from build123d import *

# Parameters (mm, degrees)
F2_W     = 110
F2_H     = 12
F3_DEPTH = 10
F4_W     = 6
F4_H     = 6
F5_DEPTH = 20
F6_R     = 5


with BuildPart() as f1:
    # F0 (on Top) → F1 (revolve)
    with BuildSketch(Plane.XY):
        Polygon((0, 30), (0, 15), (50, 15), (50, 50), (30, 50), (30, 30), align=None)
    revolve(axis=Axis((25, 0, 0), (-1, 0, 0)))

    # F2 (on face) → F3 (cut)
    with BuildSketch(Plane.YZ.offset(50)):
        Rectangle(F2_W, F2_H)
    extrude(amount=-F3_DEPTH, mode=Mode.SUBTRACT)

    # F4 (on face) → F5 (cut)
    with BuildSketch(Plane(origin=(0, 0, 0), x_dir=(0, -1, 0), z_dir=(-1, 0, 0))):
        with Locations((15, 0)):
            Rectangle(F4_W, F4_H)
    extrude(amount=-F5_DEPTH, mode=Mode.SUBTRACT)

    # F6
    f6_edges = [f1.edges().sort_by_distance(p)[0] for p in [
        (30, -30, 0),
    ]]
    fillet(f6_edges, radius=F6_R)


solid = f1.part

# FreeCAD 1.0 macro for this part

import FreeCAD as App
import Part
import Sketcher

V = App.Vector
Q = App.Units.Quantity


def edges_at(feature, points):
    """Names of the edges that pass closest to the given points."""
    edges = feature.Shape.Edges
    near = lambda p: min(range(len(edges)), key=lambda i: edges[i].distToShape(Part.Vertex(*p))[0])
    return sorted({f"Edge{near(p) + 1}" for p in points})

doc = App.newDocument("Part")
params = doc.addObject("Spreadsheet::Sheet", "Params")
for row, (alias, value) in enumerate([
    ("sketch1_width", "50 mm"),
    ("sketch1_width2", "20 mm"),
    ("sketch1_height", "15 mm"),
    ("revolution_angle", "360 deg"),
    ("sketch2_width", "110 mm"),
    ("sketch2_height", "12 mm"),
    ("pocket1_length", "10 mm"),
    ("sketch3_width", "6 mm"),
    ("pocket2_length", "20 mm"),
    ("fillet_radius", "5 mm"),
], start=1):
    params.set(f"A{row}", alias)
    params.set(f"B{row}", "=" + value)
    params.setAlias(f"B{row}", alias)

body = doc.addObject("PartDesign::Body", "Body")

# Sketch on XY plane
sketch1 = doc.addObject("Sketcher::SketchObject", "Sketch")
body.addObject(sketch1)
sketch1.AttachmentSupport = (doc.XY_Plane, [""])
sketch1.MapMode = "FlatFace"
sketch1.addGeometry([
    Part.LineSegment(V(0, 30, 0), V(0, 15, 0)),  # 0
    Part.LineSegment(V(0, 15, 0), V(50, 15, 0)),  # 1
    Part.LineSegment(V(50, 15, 0), V(50, 50, 0)),  # 2
    Part.LineSegment(V(50, 50, 0), V(30, 50, 0)),  # 3
    Part.LineSegment(V(30, 50, 0), V(30, 30, 0)),  # 4
    Part.LineSegment(V(30, 30, 0), V(0, 30, 0)),  # 5
], False)
sketch1.addConstraint([
    Sketcher.Constraint("Coincident", 0, 2, 1, 1),
    Sketcher.Constraint("Coincident", 1, 2, 2, 1),
    Sketcher.Constraint("Coincident", 2, 2, 3, 1),
    Sketcher.Constraint("Coincident", 3, 2, 4, 1),
    Sketcher.Constraint("Coincident", 4, 2, 5, 1),
    Sketcher.Constraint("Coincident", 5, 2, 0, 1),
    Sketcher.Constraint("Vertical", 0),
    Sketcher.Constraint("Horizontal", 1),
    Sketcher.Constraint("Vertical", 2),
    Sketcher.Constraint("Horizontal", 3),
    Sketcher.Constraint("Vertical", 4),
    Sketcher.Constraint("Horizontal", 5),
    Sketcher.Constraint("PointOnObject", 0, 2, -2),
    Sketcher.Constraint("Equal", 3, 4),
    Sketcher.Constraint("DistanceX", 1, 1, 1, 2, Q("50 mm")),
    Sketcher.Constraint("DistanceX", 3, 2, 3, 1, Q("20 mm")),
    Sketcher.Constraint("DistanceY", 0, 2, 0, 1, Q("15 mm")),
    Sketcher.Constraint("DistanceY", -1, 1, 0, 2, Q("15 mm")),
])
sketch1.setExpression("Constraints[14]", "Params.sketch1_width")
sketch1.setExpression("Constraints[15]", "Params.sketch1_width2")
sketch1.setExpression("Constraints[16]", "Params.sketch1_height")
revolution = doc.addObject("PartDesign::Revolution", "Revolution")
body.addObject(revolution)
revolution.Profile = sketch1
revolution.ReferenceAxis = (sketch1, ["H_Axis"])
revolution.setExpression("Angle", "Params.revolution_angle")

# Sketch on YZ plane
sketch2 = doc.addObject("Sketcher::SketchObject", "Sketch001")
body.addObject(sketch2)
sketch2.AttachmentSupport = (doc.YZ_Plane, [""])
sketch2.MapMode = "FlatFace"
sketch2.AttachmentOffset = App.Placement(V(0, 0, 50), App.Rotation())
sketch2.addGeometry([
    Part.LineSegment(V(-55, 6, 0), V(-55, -6, 0)),
    Part.LineSegment(V(-55, -6, 0), V(55, -6, 0)),
    Part.LineSegment(V(55, -6, 0), V(55, 6, 0)),
    Part.LineSegment(V(55, 6, 0), V(-55, 6, 0)),
], False)
sketch2.addConstraint([
    Sketcher.Constraint("Coincident", 0, 2, 1, 1),
    Sketcher.Constraint("Coincident", 1, 2, 2, 1),
    Sketcher.Constraint("Coincident", 2, 2, 3, 1),
    Sketcher.Constraint("Coincident", 3, 2, 0, 1),
    Sketcher.Constraint("Vertical", 0),
    Sketcher.Constraint("Horizontal", 1),
    Sketcher.Constraint("Vertical", 2),
    Sketcher.Constraint("Horizontal", 3),
    Sketcher.Constraint("Symmetric", 0, 2, 2, 2, -1, 1),
    Sketcher.Constraint("DistanceX", 1, 1, 1, 2, Q("110 mm")),
    Sketcher.Constraint("DistanceY", 0, 2, 0, 1, Q("12 mm")),
])
sketch2.setExpression("Constraints[9]", "Params.sketch2_width")
sketch2.setExpression("Constraints[10]", "Params.sketch2_height")
pocket1 = doc.addObject("PartDesign::Pocket", "Pocket")
body.addObject(pocket1)
pocket1.Profile = sketch2
pocket1.setExpression("Length", "Params.pocket1_length")

# Sketch on YZ plane
sketch3 = doc.addObject("Sketcher::SketchObject", "Sketch002")
body.addObject(sketch3)
sketch3.AttachmentSupport = (doc.YZ_Plane, [""])
sketch3.MapMode = "FlatFace"
sketch3.addGeometry([
    Part.LineSegment(V(-12, 3, 0), V(-12, -3, 0)),
    Part.LineSegment(V(-12, -3, 0), V(-18, -3, 0)),
    Part.LineSegment(V(-18, -3, 0), V(-18, 3, 0)),
    Part.LineSegment(V(-18, 3, 0), V(-12, 3, 0)),
], False)
sketch3.addConstraint([
    Sketcher.Constraint("Coincident", 0, 2, 1, 1),
    Sketcher.Constraint("Coincident", 1, 2, 2, 1),
    Sketcher.Constraint("Coincident", 2, 2, 3, 1),
    Sketcher.Constraint("Coincident", 3, 2, 0, 1),
    Sketcher.Constraint("Vertical", 0),
    Sketcher.Constraint("Horizontal", 1),
    Sketcher.Constraint("Vertical", 2),
    Sketcher.Constraint("Horizontal", 3),
    Sketcher.Constraint("Equal", 3, 0),
    Sketcher.Constraint("DistanceX", 1, 2, 1, 1, Q("6 mm")),
    Sketcher.Constraint("DistanceX", 0, 2, -1, 1, Q("12 mm")),
    Sketcher.Constraint("DistanceY", 0, 2, -1, 1, Q("3 mm")),
])
sketch3.setExpression("Constraints[9]", "Params.sketch3_width")
pocket2 = doc.addObject("PartDesign::Pocket", "Pocket001")
body.addObject(pocket2)
pocket2.Profile = sketch3
pocket2.setExpression("Length", "Params.pocket2_length")
pocket2.Reversed = True
doc.recompute()

fillet = doc.addObject("PartDesign::Fillet", "Fillet")
body.addObject(fillet)
fillet.Base = (pocket2, edges_at(pocket2, [(30, -30, 0)]))
fillet.setExpression("Radius", "Params.fillet_radius")

doc.recompute()
